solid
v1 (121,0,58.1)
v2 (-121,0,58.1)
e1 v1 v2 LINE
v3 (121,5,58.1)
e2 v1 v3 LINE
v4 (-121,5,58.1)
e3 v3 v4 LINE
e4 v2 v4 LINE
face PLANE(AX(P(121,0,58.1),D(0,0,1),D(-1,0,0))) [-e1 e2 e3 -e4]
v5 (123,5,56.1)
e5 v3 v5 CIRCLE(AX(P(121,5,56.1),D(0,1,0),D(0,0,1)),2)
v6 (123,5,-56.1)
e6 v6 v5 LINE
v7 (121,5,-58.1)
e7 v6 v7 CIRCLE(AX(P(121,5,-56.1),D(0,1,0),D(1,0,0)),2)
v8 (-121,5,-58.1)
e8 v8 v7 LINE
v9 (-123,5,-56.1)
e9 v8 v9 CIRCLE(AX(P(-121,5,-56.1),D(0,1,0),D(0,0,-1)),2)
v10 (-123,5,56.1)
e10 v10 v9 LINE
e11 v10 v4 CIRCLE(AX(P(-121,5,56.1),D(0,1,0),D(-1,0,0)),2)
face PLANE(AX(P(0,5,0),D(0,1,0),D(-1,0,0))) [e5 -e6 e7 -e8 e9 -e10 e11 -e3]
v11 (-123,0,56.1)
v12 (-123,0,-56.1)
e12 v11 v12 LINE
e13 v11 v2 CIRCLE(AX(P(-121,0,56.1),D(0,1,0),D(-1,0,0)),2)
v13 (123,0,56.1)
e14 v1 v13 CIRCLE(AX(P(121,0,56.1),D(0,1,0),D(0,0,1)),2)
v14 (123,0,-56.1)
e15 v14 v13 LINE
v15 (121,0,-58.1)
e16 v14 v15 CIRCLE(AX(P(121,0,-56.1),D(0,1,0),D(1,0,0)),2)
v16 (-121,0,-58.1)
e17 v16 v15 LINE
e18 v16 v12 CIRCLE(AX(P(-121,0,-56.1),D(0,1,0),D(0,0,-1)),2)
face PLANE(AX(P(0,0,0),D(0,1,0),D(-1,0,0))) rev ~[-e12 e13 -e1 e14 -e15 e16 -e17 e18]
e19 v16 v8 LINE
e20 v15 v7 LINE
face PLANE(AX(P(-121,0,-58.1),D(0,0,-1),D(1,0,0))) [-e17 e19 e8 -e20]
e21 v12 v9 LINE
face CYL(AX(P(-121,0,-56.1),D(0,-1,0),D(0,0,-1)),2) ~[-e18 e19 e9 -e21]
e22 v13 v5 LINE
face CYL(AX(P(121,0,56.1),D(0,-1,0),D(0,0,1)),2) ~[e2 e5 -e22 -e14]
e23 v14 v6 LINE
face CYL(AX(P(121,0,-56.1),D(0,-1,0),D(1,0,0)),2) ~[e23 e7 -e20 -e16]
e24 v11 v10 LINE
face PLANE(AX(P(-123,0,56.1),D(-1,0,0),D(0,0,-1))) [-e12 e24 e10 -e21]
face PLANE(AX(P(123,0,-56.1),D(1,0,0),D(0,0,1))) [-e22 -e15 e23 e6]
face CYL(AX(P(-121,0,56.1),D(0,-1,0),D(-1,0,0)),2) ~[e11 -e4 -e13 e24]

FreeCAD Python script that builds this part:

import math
import FreeCAD as App
import Part
import Sketcher
Q = App.Units.Quantity

doc = App.newDocument("Part")
body = doc.addObject("PartDesign::Body", "Body")

sketch1 = body.newObject("Sketcher::SketchObject", "Sketch")
sketch1.AttachmentSupport = (doc.getObject("XZ_Plane"), [""])
sketch1.MapMode = "FlatFace"
sketch1.addGeometry(Part.LineSegment(App.Vector(-121, 58.1, 0), App.Vector(121, 58.1, 0)), False)
sketch1.addGeometry(Part.ArcOfCircle(Part.Circle(App.Vector(121, 56.1, 0), App.Vector(0, 0, 1), 2), math.radians(0), math.radians(90)), False)
sketch1.addGeometry(Part.LineSegment(App.Vector(123, 56.1, 0), App.Vector(123, -56.1, 0)), False)
sketch1.addGeometry(Part.ArcOfCircle(Part.Circle(App.Vector(121, -56.1, 0), App.Vector(0, 0, 1), 2), math.radians(-90), math.radians(0)), False)
sketch1.addGeometry(Part.LineSegment(App.Vector(121, -58.1, 0), App.Vector(-121, -58.1, 0)), False)
sketch1.addGeometry(Part.ArcOfCircle(Part.Circle(App.Vector(-121, -56.1, 0), App.Vector(0, 0, 1), 2), math.radians(180), math.radians(270)), False)
sketch1.addGeometry(Part.LineSegment(App.Vector(-123, -56.1, 0), App.Vector(-123, 56.1, 0)), False)
sketch1.addGeometry(Part.ArcOfCircle(Part.Circle(App.Vector(-121, 56.1, 0), App.Vector(0, 0, 1), 2), math.radians(90), math.radians(180)), False)
sketch1.addConstraint(Sketcher.Constraint("Tangent", 0, 2, 1, 2))
sketch1.addConstraint(Sketcher.Constraint("Tangent", 1, 1, 2, 1))
sketch1.addConstraint(Sketcher.Constraint("Tangent", 2, 2, 3, 2))
sketch1.addConstraint(Sketcher.Constraint("Tangent", 3, 1, 4, 1))
sketch1.addConstraint(Sketcher.Constraint("Tangent", 4, 2, 5, 2))
sketch1.addConstraint(Sketcher.Constraint("Tangent", 5, 1, 6, 1))
sketch1.addConstraint(Sketcher.Constraint("Tangent", 6, 2, 7, 2))
sketch1.addConstraint(Sketcher.Constraint("Tangent", 7, 1, 0, 1))
sketch1.addConstraint(Sketcher.Constraint("Horizontal", 0))
sketch1.addConstraint(Sketcher.Constraint("Vertical", 2))
sketch1.addConstraint(Sketcher.Constraint("Horizontal", 4))
sketch1.addConstraint(Sketcher.Constraint("Vertical", 6))
sketch1.addConstraint(Sketcher.Constraint("Equal", 1, 3))
sketch1.addConstraint(Sketcher.Constraint("Equal", 3, 5))
sketch1.addConstraint(Sketcher.Constraint("Equal", 5, 7))
sketch1.addConstraint(Sketcher.Constraint("Symmetric", 1, 3, 5, 3, -1, 1))
sketch1.addConstraint(Sketcher.Constraint("Radius", 1, Q("2 mm")))
sketch1.addConstraint(Sketcher.Constraint("DistanceY", 3, 1, 0, 2, Q("116.2 mm")))
sketch1.addConstraint(Sketcher.Constraint("DistanceX", 0, 1, 0, 2, Q("242 mm")))
pad1 = body.newObject("PartDesign::Pad", "Pad")
pad1.Profile = sketch1
pad1.Length = 5
pad1.Reversed = True

doc.recompute()
